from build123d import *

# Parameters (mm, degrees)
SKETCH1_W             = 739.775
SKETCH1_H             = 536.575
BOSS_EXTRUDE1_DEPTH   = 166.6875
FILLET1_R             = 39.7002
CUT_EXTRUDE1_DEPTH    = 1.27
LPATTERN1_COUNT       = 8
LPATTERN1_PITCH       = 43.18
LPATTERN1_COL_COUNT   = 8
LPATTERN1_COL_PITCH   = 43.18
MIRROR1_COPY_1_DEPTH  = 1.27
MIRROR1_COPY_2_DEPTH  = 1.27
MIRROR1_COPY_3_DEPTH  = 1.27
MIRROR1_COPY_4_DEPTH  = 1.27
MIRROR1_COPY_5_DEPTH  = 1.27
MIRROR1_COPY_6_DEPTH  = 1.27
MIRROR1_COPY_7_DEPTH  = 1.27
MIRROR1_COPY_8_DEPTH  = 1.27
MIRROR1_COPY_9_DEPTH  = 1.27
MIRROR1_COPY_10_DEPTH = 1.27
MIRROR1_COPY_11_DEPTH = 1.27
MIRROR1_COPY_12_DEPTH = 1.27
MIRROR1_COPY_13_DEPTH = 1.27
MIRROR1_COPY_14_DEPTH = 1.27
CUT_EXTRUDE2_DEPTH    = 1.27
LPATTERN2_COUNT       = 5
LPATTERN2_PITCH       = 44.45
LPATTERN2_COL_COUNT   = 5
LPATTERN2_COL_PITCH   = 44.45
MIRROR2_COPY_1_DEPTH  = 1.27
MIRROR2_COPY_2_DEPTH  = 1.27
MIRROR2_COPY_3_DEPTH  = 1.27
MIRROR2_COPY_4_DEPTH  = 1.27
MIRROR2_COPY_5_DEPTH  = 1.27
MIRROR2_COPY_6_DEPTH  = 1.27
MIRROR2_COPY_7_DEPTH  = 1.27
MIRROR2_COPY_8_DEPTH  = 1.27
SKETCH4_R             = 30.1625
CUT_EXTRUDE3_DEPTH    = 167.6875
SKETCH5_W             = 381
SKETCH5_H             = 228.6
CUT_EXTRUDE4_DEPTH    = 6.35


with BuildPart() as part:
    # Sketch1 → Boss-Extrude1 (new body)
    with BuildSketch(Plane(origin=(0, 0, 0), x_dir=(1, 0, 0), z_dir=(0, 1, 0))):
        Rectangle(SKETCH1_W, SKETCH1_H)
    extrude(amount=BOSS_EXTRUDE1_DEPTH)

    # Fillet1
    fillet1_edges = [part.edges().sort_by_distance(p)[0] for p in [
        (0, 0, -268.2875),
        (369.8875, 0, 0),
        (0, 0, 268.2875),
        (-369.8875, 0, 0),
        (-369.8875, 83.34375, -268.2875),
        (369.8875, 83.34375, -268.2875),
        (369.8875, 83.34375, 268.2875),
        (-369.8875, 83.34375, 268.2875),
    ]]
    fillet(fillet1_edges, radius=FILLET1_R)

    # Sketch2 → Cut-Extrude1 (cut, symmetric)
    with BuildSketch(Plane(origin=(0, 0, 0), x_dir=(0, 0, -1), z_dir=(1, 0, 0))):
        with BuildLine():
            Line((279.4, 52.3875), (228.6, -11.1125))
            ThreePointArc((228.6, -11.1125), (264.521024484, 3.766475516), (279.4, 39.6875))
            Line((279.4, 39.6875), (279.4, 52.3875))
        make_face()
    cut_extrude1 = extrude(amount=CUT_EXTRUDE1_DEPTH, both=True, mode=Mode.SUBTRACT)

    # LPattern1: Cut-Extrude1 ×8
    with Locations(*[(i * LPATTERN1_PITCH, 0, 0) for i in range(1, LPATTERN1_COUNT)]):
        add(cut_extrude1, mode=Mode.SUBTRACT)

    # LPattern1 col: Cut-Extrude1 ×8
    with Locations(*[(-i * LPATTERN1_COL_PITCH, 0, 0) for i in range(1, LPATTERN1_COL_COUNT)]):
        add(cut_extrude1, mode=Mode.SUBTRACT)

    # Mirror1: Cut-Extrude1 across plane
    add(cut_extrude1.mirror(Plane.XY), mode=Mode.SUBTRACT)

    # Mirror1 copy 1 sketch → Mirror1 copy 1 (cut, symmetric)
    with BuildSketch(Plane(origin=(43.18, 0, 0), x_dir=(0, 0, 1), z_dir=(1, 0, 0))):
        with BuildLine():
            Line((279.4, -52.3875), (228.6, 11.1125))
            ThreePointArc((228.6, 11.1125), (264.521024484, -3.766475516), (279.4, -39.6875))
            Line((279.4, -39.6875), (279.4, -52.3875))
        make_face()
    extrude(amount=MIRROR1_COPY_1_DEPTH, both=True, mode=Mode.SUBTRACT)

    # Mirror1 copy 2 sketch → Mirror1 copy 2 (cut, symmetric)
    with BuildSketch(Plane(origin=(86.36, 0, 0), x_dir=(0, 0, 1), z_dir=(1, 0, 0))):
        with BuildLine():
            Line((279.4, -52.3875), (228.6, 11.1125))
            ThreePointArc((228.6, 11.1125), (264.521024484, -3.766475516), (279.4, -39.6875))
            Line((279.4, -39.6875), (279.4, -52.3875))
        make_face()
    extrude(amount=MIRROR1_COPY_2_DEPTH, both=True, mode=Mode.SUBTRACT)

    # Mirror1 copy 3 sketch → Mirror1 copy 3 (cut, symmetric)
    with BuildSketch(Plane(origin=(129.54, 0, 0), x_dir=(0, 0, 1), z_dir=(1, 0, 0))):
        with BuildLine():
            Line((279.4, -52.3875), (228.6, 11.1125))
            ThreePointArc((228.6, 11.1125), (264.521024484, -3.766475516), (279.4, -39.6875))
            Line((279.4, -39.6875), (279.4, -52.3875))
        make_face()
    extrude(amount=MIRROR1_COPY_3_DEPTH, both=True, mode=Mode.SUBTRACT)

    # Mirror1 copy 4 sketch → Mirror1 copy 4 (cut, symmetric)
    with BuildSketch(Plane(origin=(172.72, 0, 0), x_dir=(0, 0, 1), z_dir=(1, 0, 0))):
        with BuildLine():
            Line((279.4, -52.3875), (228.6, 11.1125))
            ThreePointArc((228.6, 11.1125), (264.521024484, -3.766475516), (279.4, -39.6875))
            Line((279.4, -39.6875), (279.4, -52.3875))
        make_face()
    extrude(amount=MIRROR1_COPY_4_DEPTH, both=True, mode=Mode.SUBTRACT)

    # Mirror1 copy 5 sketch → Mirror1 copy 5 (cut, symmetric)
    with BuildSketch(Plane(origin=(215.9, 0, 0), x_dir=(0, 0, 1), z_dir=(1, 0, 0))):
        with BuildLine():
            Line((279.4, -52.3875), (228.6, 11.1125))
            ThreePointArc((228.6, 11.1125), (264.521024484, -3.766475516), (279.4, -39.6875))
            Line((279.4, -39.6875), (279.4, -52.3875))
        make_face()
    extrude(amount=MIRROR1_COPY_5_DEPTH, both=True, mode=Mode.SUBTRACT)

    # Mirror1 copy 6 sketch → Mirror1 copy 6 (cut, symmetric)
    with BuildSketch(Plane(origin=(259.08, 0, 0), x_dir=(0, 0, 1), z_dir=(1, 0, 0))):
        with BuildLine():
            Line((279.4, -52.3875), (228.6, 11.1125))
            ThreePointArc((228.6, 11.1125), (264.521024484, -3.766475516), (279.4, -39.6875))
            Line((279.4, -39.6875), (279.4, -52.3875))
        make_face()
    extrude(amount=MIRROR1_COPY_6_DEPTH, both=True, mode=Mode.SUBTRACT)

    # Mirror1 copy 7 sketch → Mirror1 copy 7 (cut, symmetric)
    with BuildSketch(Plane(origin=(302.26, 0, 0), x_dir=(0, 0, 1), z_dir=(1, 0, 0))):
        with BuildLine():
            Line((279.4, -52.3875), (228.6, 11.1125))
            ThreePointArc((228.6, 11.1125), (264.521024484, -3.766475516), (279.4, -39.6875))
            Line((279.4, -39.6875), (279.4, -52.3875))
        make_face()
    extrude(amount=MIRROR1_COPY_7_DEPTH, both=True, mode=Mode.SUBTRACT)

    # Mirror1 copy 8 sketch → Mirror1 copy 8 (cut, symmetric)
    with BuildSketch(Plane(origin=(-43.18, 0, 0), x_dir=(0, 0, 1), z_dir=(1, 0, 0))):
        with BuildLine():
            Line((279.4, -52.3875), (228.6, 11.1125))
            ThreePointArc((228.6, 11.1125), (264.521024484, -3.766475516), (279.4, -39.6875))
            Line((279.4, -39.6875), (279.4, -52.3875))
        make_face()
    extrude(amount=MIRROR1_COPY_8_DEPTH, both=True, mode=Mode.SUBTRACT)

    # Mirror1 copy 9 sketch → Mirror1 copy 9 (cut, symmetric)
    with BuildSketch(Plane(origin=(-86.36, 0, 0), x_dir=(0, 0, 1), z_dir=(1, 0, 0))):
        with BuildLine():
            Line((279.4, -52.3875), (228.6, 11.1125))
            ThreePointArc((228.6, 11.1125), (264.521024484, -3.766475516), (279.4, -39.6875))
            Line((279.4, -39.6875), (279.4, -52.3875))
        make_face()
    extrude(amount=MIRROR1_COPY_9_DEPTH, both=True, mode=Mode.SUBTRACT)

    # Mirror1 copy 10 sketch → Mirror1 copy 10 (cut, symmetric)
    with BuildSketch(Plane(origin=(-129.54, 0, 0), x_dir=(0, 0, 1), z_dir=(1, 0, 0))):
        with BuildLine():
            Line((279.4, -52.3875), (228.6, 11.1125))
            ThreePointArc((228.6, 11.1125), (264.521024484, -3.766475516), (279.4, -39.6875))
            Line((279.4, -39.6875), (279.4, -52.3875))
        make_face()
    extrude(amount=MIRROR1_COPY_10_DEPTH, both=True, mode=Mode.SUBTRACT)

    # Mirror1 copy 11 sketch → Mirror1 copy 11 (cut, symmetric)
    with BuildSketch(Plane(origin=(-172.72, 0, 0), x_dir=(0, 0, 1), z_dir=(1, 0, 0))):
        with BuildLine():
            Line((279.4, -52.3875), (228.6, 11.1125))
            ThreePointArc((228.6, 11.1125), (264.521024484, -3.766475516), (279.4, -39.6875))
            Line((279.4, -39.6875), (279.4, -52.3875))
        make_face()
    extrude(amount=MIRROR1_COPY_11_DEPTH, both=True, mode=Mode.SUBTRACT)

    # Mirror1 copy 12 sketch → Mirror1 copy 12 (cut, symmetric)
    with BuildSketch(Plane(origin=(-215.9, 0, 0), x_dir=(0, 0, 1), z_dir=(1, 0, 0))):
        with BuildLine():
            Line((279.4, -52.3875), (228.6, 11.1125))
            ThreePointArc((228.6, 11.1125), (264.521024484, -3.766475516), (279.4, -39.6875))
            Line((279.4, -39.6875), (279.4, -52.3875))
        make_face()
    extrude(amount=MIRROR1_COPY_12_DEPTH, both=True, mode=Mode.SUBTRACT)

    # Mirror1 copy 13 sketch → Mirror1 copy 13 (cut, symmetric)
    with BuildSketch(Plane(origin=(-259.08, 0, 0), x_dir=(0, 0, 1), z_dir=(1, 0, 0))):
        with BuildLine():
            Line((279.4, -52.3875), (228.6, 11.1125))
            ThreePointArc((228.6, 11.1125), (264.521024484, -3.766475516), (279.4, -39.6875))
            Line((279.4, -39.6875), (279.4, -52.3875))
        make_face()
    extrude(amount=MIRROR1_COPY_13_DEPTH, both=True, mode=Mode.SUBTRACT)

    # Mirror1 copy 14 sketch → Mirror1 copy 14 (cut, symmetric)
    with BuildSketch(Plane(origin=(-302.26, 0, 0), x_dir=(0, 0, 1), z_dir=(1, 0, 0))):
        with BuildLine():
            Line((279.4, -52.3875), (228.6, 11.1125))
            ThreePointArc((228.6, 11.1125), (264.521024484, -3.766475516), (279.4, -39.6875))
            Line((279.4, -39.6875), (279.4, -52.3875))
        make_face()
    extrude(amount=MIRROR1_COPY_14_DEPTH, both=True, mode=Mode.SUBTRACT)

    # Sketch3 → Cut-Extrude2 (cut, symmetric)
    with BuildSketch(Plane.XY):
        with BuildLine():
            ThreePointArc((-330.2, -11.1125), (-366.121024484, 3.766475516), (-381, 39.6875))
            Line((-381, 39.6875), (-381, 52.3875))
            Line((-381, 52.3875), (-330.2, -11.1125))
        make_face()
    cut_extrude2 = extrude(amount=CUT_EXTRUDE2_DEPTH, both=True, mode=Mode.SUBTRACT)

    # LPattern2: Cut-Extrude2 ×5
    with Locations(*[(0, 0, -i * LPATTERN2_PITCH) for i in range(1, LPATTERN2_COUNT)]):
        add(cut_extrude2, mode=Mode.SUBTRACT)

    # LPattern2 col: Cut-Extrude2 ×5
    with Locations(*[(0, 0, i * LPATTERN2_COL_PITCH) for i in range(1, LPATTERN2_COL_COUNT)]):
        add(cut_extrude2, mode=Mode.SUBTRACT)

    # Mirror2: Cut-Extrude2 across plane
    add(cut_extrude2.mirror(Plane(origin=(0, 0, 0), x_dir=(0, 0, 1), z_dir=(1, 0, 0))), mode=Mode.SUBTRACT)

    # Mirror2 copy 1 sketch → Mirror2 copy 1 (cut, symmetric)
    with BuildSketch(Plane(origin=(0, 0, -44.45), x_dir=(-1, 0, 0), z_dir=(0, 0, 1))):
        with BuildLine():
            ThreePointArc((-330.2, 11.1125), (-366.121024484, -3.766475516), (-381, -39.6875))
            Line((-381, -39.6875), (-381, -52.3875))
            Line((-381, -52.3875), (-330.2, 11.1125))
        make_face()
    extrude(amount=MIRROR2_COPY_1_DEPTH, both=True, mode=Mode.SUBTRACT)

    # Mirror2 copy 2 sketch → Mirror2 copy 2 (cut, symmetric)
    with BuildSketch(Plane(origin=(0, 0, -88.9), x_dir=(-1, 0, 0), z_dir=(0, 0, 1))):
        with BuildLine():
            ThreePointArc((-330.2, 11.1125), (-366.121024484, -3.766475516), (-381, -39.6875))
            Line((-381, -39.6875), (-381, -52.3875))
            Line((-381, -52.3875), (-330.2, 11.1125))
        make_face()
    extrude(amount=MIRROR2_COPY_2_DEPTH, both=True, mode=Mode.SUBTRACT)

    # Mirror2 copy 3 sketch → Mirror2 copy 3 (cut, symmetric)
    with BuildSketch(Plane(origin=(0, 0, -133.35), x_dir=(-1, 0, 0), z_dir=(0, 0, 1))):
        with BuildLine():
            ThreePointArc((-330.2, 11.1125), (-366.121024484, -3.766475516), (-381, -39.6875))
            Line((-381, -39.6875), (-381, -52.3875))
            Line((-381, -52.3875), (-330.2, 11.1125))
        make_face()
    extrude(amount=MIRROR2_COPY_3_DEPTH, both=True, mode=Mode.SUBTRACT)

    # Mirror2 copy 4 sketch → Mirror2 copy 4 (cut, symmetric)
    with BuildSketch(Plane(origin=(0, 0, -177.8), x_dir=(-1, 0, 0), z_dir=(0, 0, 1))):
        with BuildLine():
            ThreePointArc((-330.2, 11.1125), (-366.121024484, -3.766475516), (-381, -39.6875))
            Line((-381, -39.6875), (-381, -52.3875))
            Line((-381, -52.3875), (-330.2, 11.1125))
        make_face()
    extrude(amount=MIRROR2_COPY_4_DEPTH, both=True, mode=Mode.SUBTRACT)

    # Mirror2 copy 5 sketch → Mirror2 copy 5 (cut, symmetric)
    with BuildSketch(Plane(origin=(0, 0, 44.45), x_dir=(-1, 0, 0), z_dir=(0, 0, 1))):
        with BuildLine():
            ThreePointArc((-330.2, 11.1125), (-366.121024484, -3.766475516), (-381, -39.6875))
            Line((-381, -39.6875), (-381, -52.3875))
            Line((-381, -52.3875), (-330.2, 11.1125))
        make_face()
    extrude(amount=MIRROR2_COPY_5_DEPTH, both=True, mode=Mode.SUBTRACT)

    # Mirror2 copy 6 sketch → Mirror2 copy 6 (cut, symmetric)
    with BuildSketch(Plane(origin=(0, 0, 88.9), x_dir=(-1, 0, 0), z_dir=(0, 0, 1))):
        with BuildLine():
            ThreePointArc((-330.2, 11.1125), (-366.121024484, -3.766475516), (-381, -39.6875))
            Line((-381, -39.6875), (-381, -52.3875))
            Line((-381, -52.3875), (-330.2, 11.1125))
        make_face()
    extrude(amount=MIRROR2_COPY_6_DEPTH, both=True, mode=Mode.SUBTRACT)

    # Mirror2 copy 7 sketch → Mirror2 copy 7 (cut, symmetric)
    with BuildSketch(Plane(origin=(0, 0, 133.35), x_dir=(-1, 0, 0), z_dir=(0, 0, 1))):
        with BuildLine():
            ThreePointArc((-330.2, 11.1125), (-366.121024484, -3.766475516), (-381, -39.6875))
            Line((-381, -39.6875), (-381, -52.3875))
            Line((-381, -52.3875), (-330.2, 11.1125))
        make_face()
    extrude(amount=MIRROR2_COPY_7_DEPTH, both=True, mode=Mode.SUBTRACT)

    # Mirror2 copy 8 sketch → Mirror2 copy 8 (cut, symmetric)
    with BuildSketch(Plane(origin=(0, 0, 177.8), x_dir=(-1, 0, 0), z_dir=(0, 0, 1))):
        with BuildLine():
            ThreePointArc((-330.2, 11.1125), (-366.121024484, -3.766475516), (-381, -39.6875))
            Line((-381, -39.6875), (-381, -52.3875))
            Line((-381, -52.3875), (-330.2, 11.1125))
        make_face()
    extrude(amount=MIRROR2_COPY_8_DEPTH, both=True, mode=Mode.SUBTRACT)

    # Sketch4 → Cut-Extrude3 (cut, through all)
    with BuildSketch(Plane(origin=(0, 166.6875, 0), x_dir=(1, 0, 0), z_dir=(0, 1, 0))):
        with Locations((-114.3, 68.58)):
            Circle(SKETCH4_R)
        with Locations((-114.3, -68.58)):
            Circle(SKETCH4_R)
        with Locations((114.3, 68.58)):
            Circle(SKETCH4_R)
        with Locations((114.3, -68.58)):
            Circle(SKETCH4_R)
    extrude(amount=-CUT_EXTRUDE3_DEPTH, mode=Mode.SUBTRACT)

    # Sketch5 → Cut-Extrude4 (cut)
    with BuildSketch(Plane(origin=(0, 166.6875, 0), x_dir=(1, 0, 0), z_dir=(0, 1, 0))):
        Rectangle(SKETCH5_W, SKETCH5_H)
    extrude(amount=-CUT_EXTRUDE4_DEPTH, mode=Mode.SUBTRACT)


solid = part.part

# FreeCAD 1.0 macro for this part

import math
import FreeCAD as App
import Part
import Sketcher

V = App.Vector
Q = App.Units.Quantity


def edges_at(feature, points):
    """Names of the edges that pass closest to the given points."""
    edges = feature.Shape.Edges
    near = lambda p: min(range(len(edges)), key=lambda i: edges[i].distToShape(Part.Vertex(*p))[0])
    return sorted({f"Edge{near(p) + 1}" for p in points})


def add_polygon(sketch, points):
    """Adds a closed chain of lines whose ends are joined by coincident constraints."""
    first, n = sketch.GeometryCount, len(points)
    for a, b in zip(points, points[1:] + points[:1]):
        sketch.addGeometry(Part.LineSegment(App.Vector(*a, 0), App.Vector(*b, 0)), False)
    for i in range(n):
        sketch.addConstraint(Sketcher.Constraint("Coincident", first + i, 2, first + (i + 1) % n, 1))

doc = App.newDocument("Part")
body = doc.addObject("PartDesign::Body", "Body")

# Sketch on XZ plane
sketch1 = body.newObject("Sketcher::SketchObject", "Sketch")
sketch1.AttachmentSupport = (doc.getObject("XZ_Plane"), [""])
sketch1.MapMode = "FlatFace"
add_polygon(sketch1, [(-369.8875, -268.2875), (-369.8875, 268.2875), (369.8875, 268.2875), (369.8875, -268.2875)])  # lines 0-3
sketch1.addConstraint([
    Sketcher.Constraint("Vertical", 0),
    Sketcher.Constraint("Horizontal", 1),
    Sketcher.Constraint("Vertical", 2),
    Sketcher.Constraint("Horizontal", 3),
    Sketcher.Constraint("Symmetric", 0, 2, 2, 2, -1, 1),
    Sketcher.Constraint("DistanceX", 1, 1, 1, 2, Q("29.125 in")),
    Sketcher.Constraint("DistanceY", 0, 1, 0, 2, Q("21.125 in")),
])
pad1 = body.newObject("PartDesign::Pad", "Pad")
pad1.Profile = sketch1
pad1.Length = Q("6.5625 in")
pad1.Reversed = True
doc.recompute()

fillet = body.newObject("PartDesign::Fillet", "Fillet")
fillet.Base = (pad1, edges_at(pad1, [
    (0, 0, -268.288),
    (369.887, 0, 0),
    (0, 0, 268.288),
    (-369.887, 0, 0),
    (-369.887, 83.344, -268.288),
    (369.887, 83.344, -268.288),
    (369.887, 83.344, 268.288),
    (-369.887, 83.344, 268.288),
]))
fillet.Radius = Q("1.563 in")

# Sketch on YZ plane
sketch2 = body.newObject("Sketcher::SketchObject", "Sketch001")
sketch2.AttachmentSupport = (doc.getObject("YZ_Plane"), [""])
sketch2.MapMode = "FlatFace"
sketch2.addGeometry([
    Part.LineSegment(V(52.3875, -279.4, 0), V(-11.1125, -228.6, 0)),
    Part.ArcOfCircle(Part.Circle(V(39.6875, -228.6, 0), V(0, 0, 1), 50.8), math.radians(-180), math.radians(-90)),
    Part.LineSegment(V(39.6875, -279.4, 0), V(52.3875, -279.4, 0)),
], False)
sketch2.addConstraint([
    Sketcher.Constraint("Coincident", 0, 2, 1, 1),
    Sketcher.Constraint("Tangent", 1, 2, 2, 1),
    Sketcher.Constraint("Coincident", 2, 2, 0, 1),
    Sketcher.Constraint("Horizontal", 2),
    Sketcher.Constraint("Horizontal", 1, 3, 0, 2),
    Sketcher.Constraint("Radius", 1, Q("2 in")),
    Sketcher.Constraint("DistanceX", 2, 1, 2, 2, Q("0.5 in")),
    Sketcher.Constraint("DistanceY", 1, 3, -1, 1, Q("9 in")),
    Sketcher.Constraint("DistanceX", -1, 1, 1, 3, Q("1.5625 in")),
])
pocket1 = body.newObject("PartDesign::Pocket", "Pocket")
pocket1.Profile = sketch2
pocket1.Length = Q("0.1 in")
pocket1.Midplane = True
doc.recompute()

linearpattern = body.newObject("PartDesign::LinearPattern", "LinearPattern")
linearpattern.Originals = [pocket1]
linearpattern.Direction = (doc.getObject("X_Axis"), [""])
linearpattern.Mode = "offset"
linearpattern.Offset = Q("1.7 in")
linearpattern.Occurrences = 8
body.Tip = linearpattern
doc.recompute()

linearpattern2 = body.newObject("PartDesign::LinearPattern", "LinearPattern001")
linearpattern2.Originals = [pocket1]
linearpattern2.Direction = (doc.getObject("X_Axis"), [""])
linearpattern2.Mode = "offset"
linearpattern2.Offset = Q("1.7 in")
linearpattern2.Occurrences = 8
linearpattern2.Reversed = True
body.Tip = linearpattern2
doc.recompute()

mirrored = body.newObject("PartDesign::Mirrored", "Mirrored")
mirrored.Originals = [pocket1]
mirrored.MirrorPlane = (doc.getObject("XY_Plane"), [""])
body.Tip = mirrored

# Sketch on YZ plane
sketch3 = body.newObject("Sketcher::SketchObject", "Sketch002")
sketch3.AttachmentSupport = (doc.getObject("YZ_Plane"), [""])
sketch3.MapMode = "FlatFace"
sketch3.AttachmentOffset = App.Placement(V(0, 0, 1.7 * 25.4), App.Rotation())
sketch3.addGeometry([
    Part.LineSegment(V(-11.1125, 228.6, 0), V(52.3875, 279.4, 0)),
    Part.LineSegment(V(52.3875, 279.4, 0), V(39.6875, 279.4, 0)),
    Part.ArcOfCircle(Part.Circle(V(39.6875, 228.6, 0), V(0, 0, 1), 50.8), math.radians(90), math.radians(180)),
], False)
sketch3.addConstraint([
    Sketcher.Constraint("Coincident", 0, 2, 1, 1),
    Sketcher.Constraint("Tangent", 1, 2, 2, 1),
    Sketcher.Constraint("Coincident", 2, 2, 0, 1),
    Sketcher.Constraint("Horizontal", 1),
    Sketcher.Constraint("Radius", 2, Q("2 in")),
    Sketcher.Constraint("DistanceX", 1, 2, 1, 1, Q("0.5 in")),
    Sketcher.Constraint("DistanceY", -1, 1, 2, 3, Q("9 in")),
    Sketcher.Constraint("DistanceY", -1, 1, 2, 2, Q("9 in")),
    Sketcher.Constraint("DistanceX", -1, 1, 2, 3, Q("1.5625 in")),
])
pocket2 = body.newObject("PartDesign::Pocket", "Pocket001")
pocket2.Profile = sketch3
pocket2.Length = Q("0.1 in")
pocket2.Midplane = True

# Sketch on YZ plane
sketch4 = body.newObject("Sketcher::SketchObject", "Sketch003")
sketch4.AttachmentSupport = (doc.getObject("YZ_Plane"), [""])
sketch4.MapMode = "FlatFace"
sketch4.AttachmentOffset = App.Placement(V(0, 0, 3.4 * 25.4), App.Rotation())
sketch4.addGeometry([
    Part.LineSegment(V(-11.1125, 228.6, 0), V(52.3875, 279.4, 0)),
    Part.LineSegment(V(52.3875, 279.4, 0), V(39.6875, 279.4, 0)),
    Part.ArcOfCircle(Part.Circle(V(39.6875, 228.6, 0), V(0, 0, 1), 50.8), math.radians(90), math.radians(180)),
], False)
sketch4.addConstraint([
    Sketcher.Constraint("Coincident", 0, 2, 1, 1),
    Sketcher.Constraint("Tangent", 1, 2, 2, 1),
    Sketcher.Constraint("Coincident", 2, 2, 0, 1),
    Sketcher.Constraint("Horizontal", 1),
    Sketcher.Constraint("Radius", 2, Q("2 in")),
    Sketcher.Constraint("DistanceX", 1, 2, 1, 1, Q("0.5 in")),
    Sketcher.Constraint("DistanceY", -1, 1, 2, 3, Q("9 in")),
    Sketcher.Constraint("DistanceY", -1, 1, 2, 2, Q("9 in")),
    Sketcher.Constraint("DistanceX", -1, 1, 2, 3, Q("1.5625 in")),
])
pocket3 = body.newObject("PartDesign::Pocket", "Pocket002")
pocket3.Profile = sketch4
pocket3.Length = Q("0.1 in")
pocket3.Midplane = True

# Sketch on YZ plane
sketch5 = body.newObject("Sketcher::SketchObject", "Sketch004")
sketch5.AttachmentSupport = (doc.getObject("YZ_Plane"), [""])
sketch5.MapMode = "FlatFace"
sketch5.AttachmentOffset = App.Placement(V(0, 0, 5.1 * 25.4), App.Rotation())
sketch5.addGeometry([
    Part.LineSegment(V(-11.1125, 228.6, 0), V(52.3875, 279.4, 0)),
    Part.LineSegment(V(52.3875, 279.4, 0), V(39.6875, 279.4, 0)),
    Part.ArcOfCircle(Part.Circle(V(39.6875, 228.6, 0), V(0, 0, 1), 50.8), math.radians(90), math.radians(180)),
], False)
sketch5.addConstraint([
    Sketcher.Constraint("Coincident", 0, 2, 1, 1),
    Sketcher.Constraint("Tangent", 1, 2, 2, 1),
    Sketcher.Constraint("Coincident", 2, 2, 0, 1),
    Sketcher.Constraint("Horizontal", 1),
    Sketcher.Constraint("Radius", 2, Q("2 in")),
    Sketcher.Constraint("DistanceX", 1, 2, 1, 1, Q("0.5 in")),
    Sketcher.Constraint("DistanceY", -1, 1, 2, 3, Q("9 in")),
    Sketcher.Constraint("DistanceY", -1, 1, 2, 2, Q("9 in")),
    Sketcher.Constraint("DistanceX", -1, 1, 2, 3, Q("1.5625 in")),
])
pocket4 = body.newObject("PartDesign::Pocket", "Pocket003")
pocket4.Profile = sketch5
pocket4.Length = Q("0.1 in")
pocket4.Midplane = True

# Sketch on YZ plane
sketch6 = body.newObject("Sketcher::SketchObject", "Sketch005")
sketch6.AttachmentSupport = (doc.getObject("YZ_Plane"), [""])
sketch6.MapMode = "FlatFace"
sketch6.AttachmentOffset = App.Placement(V(0, 0, 6.8 * 25.4), App.Rotation())
sketch6.addGeometry([
    Part.LineSegment(V(-11.1125, 228.6, 0), V(52.3875, 279.4, 0)),
    Part.LineSegment(V(52.3875, 279.4, 0), V(39.6875, 279.4, 0)),
    Part.ArcOfCircle(Part.Circle(V(39.6875, 228.6, 0), V(0, 0, 1), 50.8), math.radians(90), math.radians(180)),
], False)
sketch6.addConstraint([
    Sketcher.Constraint("Coincident", 0, 2, 1, 1),
    Sketcher.Constraint("Tangent", 1, 2, 2, 1),
    Sketcher.Constraint("Coincident", 2, 2, 0, 1),
    Sketcher.Constraint("Horizontal", 1),
    Sketcher.Constraint("Radius", 2, Q("2 in")),
    Sketcher.Constraint("DistanceX", 1, 2, 1, 1, Q("0.5 in")),
    Sketcher.Constraint("DistanceY", -1, 1, 2, 3, Q("9 in")),
    Sketcher.Constraint("DistanceY", -1, 1, 2, 2, Q("9 in")),
    Sketcher.Constraint("DistanceX", -1, 1, 2, 3, Q("1.5625 in")),
])
pocket5 = body.newObject("PartDesign::Pocket", "Pocket004")
pocket5.Profile = sketch6
pocket5.Length = Q("0.1 in")
pocket5.Midplane = True

# Sketch on YZ plane
sketch7 = body.newObject("Sketcher::SketchObject", "Sketch006")
sketch7.AttachmentSupport = (doc.getObject("YZ_Plane"), [""])
sketch7.MapMode = "FlatFace"
sketch7.AttachmentOffset = App.Placement(V(0, 0, 8.5 * 25.4), App.Rotation())
sketch7.addGeometry([
    Part.LineSegment(V(-11.1125, 228.6, 0), V(52.3875, 279.4, 0)),
    Part.LineSegment(V(52.3875, 279.4, 0), V(39.6875, 279.4, 0)),
    Part.ArcOfCircle(Part.Circle(V(39.6875, 228.6, 0), V(0, 0, 1), 50.8), math.radians(90), math.radians(180)),
], False)
sketch7.addConstraint([
    Sketcher.Constraint("Coincident", 0, 2, 1, 1),
    Sketcher.Constraint("Tangent", 1, 2, 2, 1),
    Sketcher.Constraint("Coincident", 2, 2, 0, 1),
    Sketcher.Constraint("Horizontal", 1),
    Sketcher.Constraint("Radius", 2, Q("2 in")),
    Sketcher.Constraint("DistanceX", 1, 2, 1, 1, Q("0.5 in")),
    Sketcher.Constraint("DistanceY", -1, 1, 2, 3, Q("9 in")),
    Sketcher.Constraint("DistanceY", -1, 1, 2, 2, Q("9 in")),
    Sketcher.Constraint("DistanceX", -1, 1, 2, 3, Q("1.5625 in")),
])
pocket6 = body.newObject("PartDesign::Pocket", "Pocket005")
pocket6.Profile = sketch7
pocket6.Length = Q("0.1 in")
pocket6.Midplane = True

# Sketch on YZ plane
sketch8 = body.newObject("Sketcher::SketchObject", "Sketch007")
sketch8.AttachmentSupport = (doc.getObject("YZ_Plane"), [""])
sketch8.MapMode = "FlatFace"
sketch8.AttachmentOffset = App.Placement(V(0, 0, 10.2 * 25.4), App.Rotation())
sketch8.addGeometry([
    Part.LineSegment(V(-11.1125, 228.6, 0), V(52.3875, 279.4, 0)),
    Part.LineSegment(V(52.3875, 279.4, 0), V(39.6875, 279.4, 0)),
    Part.ArcOfCircle(Part.Circle(V(39.6875, 228.6, 0), V(0, 0, 1), 50.8), math.radians(90), math.radians(180)),
], False)
sketch8.addConstraint([
    Sketcher.Constraint("Coincident", 0, 2, 1, 1),
    Sketcher.Constraint("Tangent", 1, 2, 2, 1),
    Sketcher.Constraint("Coincident", 2, 2, 0, 1),
    Sketcher.Constraint("Horizontal", 1),
    Sketcher.Constraint("Radius", 2, Q("2 in")),
    Sketcher.Constraint("DistanceX", 1, 2, 1, 1, Q("0.5 in")),
    Sketcher.Constraint("DistanceY", -1, 1, 2, 3, Q("9 in")),
    Sketcher.Constraint("DistanceY", -1, 1, 2, 2, Q("9 in")),
    Sketcher.Constraint("DistanceX", -1, 1, 2, 3, Q("1.5625 in")),
])
pocket7 = body.newObject("PartDesign::Pocket", "Pocket006")
pocket7.Profile = sketch8
pocket7.Length = Q("0.1 in")
pocket7.Midplane = True

# Sketch on YZ plane
sketch9 = body.newObject("Sketcher::SketchObject", "Sketch008")
sketch9.AttachmentSupport = (doc.getObject("YZ_Plane"), [""])
sketch9.MapMode = "FlatFace"
sketch9.AttachmentOffset = App.Placement(V(0, 0, 11.9 * 25.4), App.Rotation())
sketch9.addGeometry([
    Part.LineSegment(V(-11.1125, 228.6, 0), V(52.3875, 279.4, 0)),
    Part.LineSegment(V(52.3875, 279.4, 0), V(39.6875, 279.4, 0)),
    Part.ArcOfCircle(Part.Circle(V(39.6875, 228.6, 0), V(0, 0, 1), 50.8), math.radians(90), math.radians(180)),
], False)
sketch9.addConstraint([
    Sketcher.Constraint("Coincident", 0, 2, 1, 1),
    Sketcher.Constraint("Tangent", 1, 2, 2, 1),
    Sketcher.Constraint("Coincident", 2, 2, 0, 1),
    Sketcher.Constraint("Horizontal", 1),
    Sketcher.Constraint("Radius", 2, Q("2 in")),
    Sketcher.Constraint("DistanceX", 1, 2, 1, 1, Q("0.5 in")),
    Sketcher.Constraint("DistanceY", -1, 1, 2, 3, Q("9 in")),
    Sketcher.Constraint("DistanceY", -1, 1, 2, 2, Q("9 in")),
    Sketcher.Constraint("DistanceX", -1, 1, 2, 3, Q("1.5625 in")),
])
pocket8 = body.newObject("PartDesign::Pocket", "Pocket007")
pocket8.Profile = sketch9
pocket8.Length = Q("0.1 in")
pocket8.Midplane = True

# Sketch on YZ plane
sketch10 = body.newObject("Sketcher::SketchObject", "Sketch009")
sketch10.AttachmentSupport = (doc.getObject("YZ_Plane"), [""])
sketch10.MapMode = "FlatFace"
sketch10.AttachmentOffset = App.Placement(V(0, 0, -1.7 * 25.4), App.Rotation())
sketch10.addGeometry([
    Part.LineSegment(V(-11.1125, 228.6, 0), V(52.3875, 279.4, 0)),
    Part.LineSegment(V(52.3875, 279.4, 0), V(39.6875, 279.4, 0)),
    Part.ArcOfCircle(Part.Circle(V(39.6875, 228.6, 0), V(0, 0, 1), 50.8), math.radians(90), math.radians(180)),
], False)
sketch10.addConstraint([
    Sketcher.Constraint("Coincident", 0, 2, 1, 1),
    Sketcher.Constraint("Tangent", 1, 2, 2, 1),
    Sketcher.Constraint("Coincident", 2, 2, 0, 1),
    Sketcher.Constraint("Horizontal", 1),
    Sketcher.Constraint("Radius", 2, Q("2 in")),
    Sketcher.Constraint("DistanceX", 1, 2, 1, 1, Q("0.5 in")),
    Sketcher.Constraint("DistanceY", -1, 1, 2, 3, Q("9 in")),
    Sketcher.Constraint("DistanceY", -1, 1, 2, 2, Q("9 in")),
    Sketcher.Constraint("DistanceX", -1, 1, 2, 3, Q("1.5625 in")),
])
pocket9 = body.newObject("PartDesign::Pocket", "Pocket008")
pocket9.Profile = sketch10
pocket9.Length = Q("0.1 in")
pocket9.Midplane = True

# Sketch on YZ plane
sketch11 = body.newObject("Sketcher::SketchObject", "Sketch010")
sketch11.AttachmentSupport = (doc.getObject("YZ_Plane"), [""])
sketch11.MapMode = "FlatFace"
sketch11.AttachmentOffset = App.Placement(V(0, 0, -3.4 * 25.4), App.Rotation())
sketch11.addGeometry([
    Part.LineSegment(V(-11.1125, 228.6, 0), V(52.3875, 279.4, 0)),
    Part.LineSegment(V(52.3875, 279.4, 0), V(39.6875, 279.4, 0)),
    Part.ArcOfCircle(Part.Circle(V(39.6875, 228.6, 0), V(0, 0, 1), 50.8), math.radians(90), math.radians(180)),
], False)
sketch11.addConstraint([
    Sketcher.Constraint("Coincident", 0, 2, 1, 1),
    Sketcher.Constraint("Tangent", 1, 2, 2, 1),
    Sketcher.Constraint("Coincident", 2, 2, 0, 1),
    Sketcher.Constraint("Horizontal", 1),
    Sketcher.Constraint("Radius", 2, Q("2 in")),
    Sketcher.Constraint("DistanceX", 1, 2, 1, 1, Q("0.5 in")),
    Sketcher.Constraint("DistanceY", -1, 1, 2, 3, Q("9 in")),
    Sketcher.Constraint("DistanceY", -1, 1, 2, 2, Q("9 in")),
    Sketcher.Constraint("DistanceX", -1, 1, 2, 3, Q("1.5625 in")),
])
pocket10 = body.newObject("PartDesign::Pocket", "Pocket009")
pocket10.Profile = sketch11
pocket10.Length = Q("0.1 in")
pocket10.Midplane = True

# Sketch on YZ plane
sketch12 = body.newObject("Sketcher::SketchObject", "Sketch011")
sketch12.AttachmentSupport = (doc.getObject("YZ_Plane"), [""])
sketch12.MapMode = "FlatFace"
sketch12.AttachmentOffset = App.Placement(V(0, 0, -5.1 * 25.4), App.Rotation())
sketch12.addGeometry([
    Part.LineSegment(V(-11.1125, 228.6, 0), V(52.3875, 279.4, 0)),
    Part.LineSegment(V(52.3875, 279.4, 0), V(39.6875, 279.4, 0)),
    Part.ArcOfCircle(Part.Circle(V(39.6875, 228.6, 0), V(0, 0, 1), 50.8), math.radians(90), math.radians(180)),
], False)
sketch12.addConstraint([
    Sketcher.Constraint("Coincident", 0, 2, 1, 1),
    Sketcher.Constraint("Tangent", 1, 2, 2, 1),
    Sketcher.Constraint("Coincident", 2, 2, 0, 1),
    Sketcher.Constraint("Horizontal", 1),
    Sketcher.Constraint("Radius", 2, Q("2 in")),
    Sketcher.Constraint("DistanceX", 1, 2, 1, 1, Q("0.5 in")),
    Sketcher.Constraint("DistanceY", -1, 1, 2, 3, Q("9 in")),
    Sketcher.Constraint("DistanceY", -1, 1, 2, 2, Q("9 in")),
    Sketcher.Constraint("DistanceX", -1, 1, 2, 3, Q("1.5625 in")),
])
pocket11 = body.newObject("PartDesign::Pocket", "Pocket010")
pocket11.Profile = sketch12
pocket11.Length = Q("0.1 in")
pocket11.Midplane = True

# Sketch on YZ plane
sketch13 = body.newObject("Sketcher::SketchObject", "Sketch012")
sketch13.AttachmentSupport = (doc.getObject("YZ_Plane"), [""])
sketch13.MapMode = "FlatFace"
sketch13.AttachmentOffset = App.Placement(V(0, 0, -6.8 * 25.4), App.Rotation())
sketch13.addGeometry([
    Part.LineSegment(V(-11.1125, 228.6, 0), V(52.3875, 279.4, 0)),
    Part.LineSegment(V(52.3875, 279.4, 0), V(39.6875, 279.4, 0)),
    Part.ArcOfCircle(Part.Circle(V(39.6875, 228.6, 0), V(0, 0, 1), 50.8), math.radians(90), math.radians(180)),
], False)
sketch13.addConstraint([
    Sketcher.Constraint("Coincident", 0, 2, 1, 1),
    Sketcher.Constraint("Tangent", 1, 2, 2, 1),
    Sketcher.Constraint("Coincident", 2, 2, 0, 1),
    Sketcher.Constraint("Horizontal", 1),
    Sketcher.Constraint("Radius", 2, Q("2 in")),
    Sketcher.Constraint("DistanceX", 1, 2, 1, 1, Q("0.5 in")),
    Sketcher.Constraint("DistanceY", -1, 1, 2, 3, Q("9 in")),
    Sketcher.Constraint("DistanceY", -1, 1, 2, 2, Q("9 in")),
    Sketcher.Constraint("DistanceX", -1, 1, 2, 3, Q("1.5625 in")),
])
pocket12 = body.newObject("PartDesign::Pocket", "Pocket011")
pocket12.Profile = sketch13
pocket12.Length = Q("0.1 in")
pocket12.Midplane = True

# Sketch on YZ plane
sketch14 = body.newObject("Sketcher::SketchObject", "Sketch013")
sketch14.AttachmentSupport = (doc.getObject("YZ_Plane"), [""])
sketch14.MapMode = "FlatFace"
sketch14.AttachmentOffset = App.Placement(V(0, 0, -8.5 * 25.4), App.Rotation())
sketch14.addGeometry([
    Part.LineSegment(V(-11.1125, 228.6, 0), V(52.3875, 279.4, 0)),
    Part.LineSegment(V(52.3875, 279.4, 0), V(39.6875, 279.4, 0)),
    Part.ArcOfCircle(Part.Circle(V(39.6875, 228.6, 0), V(0, 0, 1), 50.8), math.radians(90), math.radians(180)),
], False)
sketch14.addConstraint([
    Sketcher.Constraint("Coincident", 0, 2, 1, 1),
    Sketcher.Constraint("Tangent", 1, 2, 2, 1),
    Sketcher.Constraint("Coincident", 2, 2, 0, 1),
    Sketcher.Constraint("Horizontal", 1),
    Sketcher.Constraint("Radius", 2, Q("2 in")),
    Sketcher.Constraint("DistanceX", 1, 2, 1, 1, Q("0.5 in")),
    Sketcher.Constraint("DistanceY", -1, 1, 2, 3, Q("9 in")),
    Sketcher.Constraint("DistanceY", -1, 1, 2, 2, Q("9 in")),
    Sketcher.Constraint("DistanceX", -1, 1, 2, 3, Q("1.5625 in")),
])
pocket13 = body.newObject("PartDesign::Pocket", "Pocket012")
pocket13.Profile = sketch14
pocket13.Length = Q("0.1 in")
pocket13.Midplane = True

# Sketch on YZ plane
sketch15 = body.newObject("Sketcher::SketchObject", "Sketch014")
sketch15.AttachmentSupport = (doc.getObject("YZ_Plane"), [""])
sketch15.MapMode = "FlatFace"
sketch15.AttachmentOffset = App.Placement(V(0, 0, -10.2 * 25.4), App.Rotation())
sketch15.addGeometry([
    Part.LineSegment(V(-11.1125, 228.6, 0), V(52.3875, 279.4, 0)),
    Part.LineSegment(V(52.3875, 279.4, 0), V(39.6875, 279.4, 0)),
    Part.ArcOfCircle(Part.Circle(V(39.6875, 228.6, 0), V(0, 0, 1), 50.8), math.radians(90), math.radians(180)),
], False)
sketch15.addConstraint([
    Sketcher.Constraint("Coincident", 0, 2, 1, 1),
    Sketcher.Constraint("Tangent", 1, 2, 2, 1),
    Sketcher.Constraint("Coincident", 2, 2, 0, 1),
    Sketcher.Constraint("Horizontal", 1),
    Sketcher.Constraint("Radius", 2, Q("2 in")),
    Sketcher.Constraint("DistanceX", 1, 2, 1, 1, Q("0.5 in")),
    Sketcher.Constraint("DistanceY", -1, 1, 2, 3, Q("9 in")),
    Sketcher.Constraint("DistanceY", -1, 1, 2, 2, Q("9 in")),
    Sketcher.Constraint("DistanceX", -1, 1, 2, 3, Q("1.5625 in")),
])
pocket14 = body.newObject("PartDesign::Pocket", "Pocket013")
pocket14.Profile = sketch15
pocket14.Length = Q("0.1 in")
pocket14.Midplane = True

# Sketch on YZ plane
sketch16 = body.newObject("Sketcher::SketchObject", "Sketch015")
sketch16.AttachmentSupport = (doc.getObject("YZ_Plane"), [""])
sketch16.MapMode = "FlatFace"
sketch16.AttachmentOffset = App.Placement(V(0, 0, -11.9 * 25.4), App.Rotation())
sketch16.addGeometry([
    Part.LineSegment(V(-11.1125, 228.6, 0), V(52.3875, 279.4, 0)),
    Part.LineSegment(V(52.3875, 279.4, 0), V(39.6875, 279.4, 0)),
    Part.ArcOfCircle(Part.Circle(V(39.6875, 228.6, 0), V(0, 0, 1), 50.8), math.radians(90), math.radians(180)),
], False)
sketch16.addConstraint([
    Sketcher.Constraint("Coincident", 0, 2, 1, 1),
    Sketcher.Constraint("Tangent", 1, 2, 2, 1),
    Sketcher.Constraint("Coincident", 2, 2, 0, 1),
    Sketcher.Constraint("Horizontal", 1),
    Sketcher.Constraint("Radius", 2, Q("2 in")),
    Sketcher.Constraint("DistanceX", 1, 2, 1, 1, Q("0.5 in")),
    Sketcher.Constraint("DistanceY", -1, 1, 2, 3, Q("9 in")),
    Sketcher.Constraint("DistanceY", -1, 1, 2, 2, Q("9 in")),
    Sketcher.Constraint("DistanceX", -1, 1, 2, 3, Q("1.5625 in")),
])
pocket15 = body.newObject("PartDesign::Pocket", "Pocket014")
pocket15.Profile = sketch16
pocket15.Length = Q("0.1 in")
pocket15.Midplane = True

# Sketch on XY plane
sketch17 = body.newObject("Sketcher::SketchObject", "Sketch016")
sketch17.AttachmentSupport = (doc.getObject("XY_Plane"), [""])
sketch17.MapMode = "FlatFace"
sketch17.addGeometry([
    Part.ArcOfCircle(Part.Circle(V(-330.2, 39.6875, 0), V(0, 0, 1), 50.8), math.radians(-180), math.radians(-90)),
    Part.LineSegment(V(-330.2, -11.1125, 0), V(-381, 52.3875, 0)),
    Part.LineSegment(V(-381, 52.3875, 0), V(-381, 39.6875, 0)),
], False)
sketch17.addConstraint([
    Sketcher.Constraint("Coincident", 0, 2, 1, 1),
    Sketcher.Constraint("Coincident", 1, 2, 2, 1),
    Sketcher.Constraint("Tangent", 2, 2, 0, 1),
    Sketcher.Constraint("Vertical", 2),
    Sketcher.Constraint("Radius", 0, Q("2 in")),
    Sketcher.Constraint("DistanceY", 2, 2, 2, 1, Q("0.5 in")),
    Sketcher.Constraint("DistanceX", 0, 3, -1, 1, Q("13 in")),
    Sketcher.Constraint("DistanceX", 0, 2, -1, 1, Q("13 in")),
    Sketcher.Constraint("DistanceY", -1, 1, 0, 3, Q("1.5625 in")),
])
pocket16 = body.newObject("PartDesign::Pocket", "Pocket015")
pocket16.Profile = sketch17
pocket16.Length = Q("0.1 in")
pocket16.Midplane = True
doc.recompute()

linearpattern3 = body.newObject("PartDesign::LinearPattern", "LinearPattern002")
linearpattern3.Originals = [pocket16]
linearpattern3.Direction = (doc.getObject("Z_Axis"), [""])
linearpattern3.Mode = "offset"
linearpattern3.Offset = Q("1.75 in")
linearpattern3.Occurrences = 5
linearpattern3.Reversed = True
body.Tip = linearpattern3
doc.recompute()

linearpattern4 = body.newObject("PartDesign::LinearPattern", "LinearPattern003")
linearpattern4.Originals = [pocket16]
linearpattern4.Direction = (doc.getObject("Z_Axis"), [""])
linearpattern4.Mode = "offset"
linearpattern4.Offset = Q("1.75 in")
linearpattern4.Occurrences = 5
body.Tip = linearpattern4
doc.recompute()

mirrored2 = body.newObject("PartDesign::Mirrored", "Mirrored001")
mirrored2.Originals = [pocket16]
mirrored2.MirrorPlane = (doc.getObject("YZ_Plane"), [""])
body.Tip = mirrored2

# Sketch on XY plane
sketch18 = body.newObject("Sketcher::SketchObject", "Sketch017")
sketch18.AttachmentSupport = (doc.getObject("XY_Plane"), [""])
sketch18.MapMode = "FlatFace"
sketch18.AttachmentOffset = App.Placement(V(0, 0, -1.75 * 25.4), App.Rotation())
sketch18.addGeometry([
    Part.ArcOfCircle(Part.Circle(V(330.2, 39.6875, 0), V(0, 0, 1), 50.8), math.radians(-90), math.radians(0)),
    Part.LineSegment(V(381, 39.6875, 0), V(381, 52.3875, 0)),
    Part.LineSegment(V(381, 52.3875, 0), V(330.2, -11.1125, 0)),
], False)
sketch18.addConstraint([
    Sketcher.Constraint("Tangent", 0, 2, 1, 1),
    Sketcher.Constraint("Coincident", 1, 2, 2, 1),
    Sketcher.Constraint("Coincident", 2, 2, 0, 1),
    Sketcher.Constraint("Vertical", 1),
    Sketcher.Constraint("Vertical", 0, 3, 2, 2),
    Sketcher.Constraint("Radius", 0, Q("2 in")),
    Sketcher.Constraint("DistanceY", 1, 1, 1, 2, Q("0.5 in")),
    Sketcher.Constraint("DistanceX", -1, 1, 0, 3, Q("13 in")),
    Sketcher.Constraint("DistanceY", -1, 1, 0, 3, Q("1.5625 in")),
])
pocket17 = body.newObject("PartDesign::Pocket", "Pocket016")
pocket17.Profile = sketch18
pocket17.Length = Q("0.1 in")
pocket17.Midplane = True

# Sketch on XY plane
sketch19 = body.newObject("Sketcher::SketchObject", "Sketch018")
sketch19.AttachmentSupport = (doc.getObject("XY_Plane"), [""])
sketch19.MapMode = "FlatFace"
sketch19.AttachmentOffset = App.Placement(V(0, 0, -3.5 * 25.4), App.Rotation())
sketch19.addGeometry([
    Part.ArcOfCircle(Part.Circle(V(330.2, 39.6875, 0), V(0, 0, 1), 50.8), math.radians(-90), math.radians(0)),
    Part.LineSegment(V(381, 39.6875, 0), V(381, 52.3875, 0)),
    Part.LineSegment(V(381, 52.3875, 0), V(330.2, -11.1125, 0)),
], False)
sketch19.addConstraint([
    Sketcher.Constraint("Tangent", 0, 2, 1, 1),
    Sketcher.Constraint("Coincident", 1, 2, 2, 1),
    Sketcher.Constraint("Coincident", 2, 2, 0, 1),
    Sketcher.Constraint("Vertical", 1),
    Sketcher.Constraint("Vertical", 0, 3, 2, 2),
    Sketcher.Constraint("Radius", 0, Q("2 in")),
    Sketcher.Constraint("DistanceY", 1, 1, 1, 2, Q("0.5 in")),
    Sketcher.Constraint("DistanceX", -1, 1, 0, 3, Q("13 in")),
    Sketcher.Constraint("DistanceY", -1, 1, 0, 3, Q("1.5625 in")),
])
pocket18 = body.newObject("PartDesign::Pocket", "Pocket017")
pocket18.Profile = sketch19
pocket18.Length = Q("0.1 in")
pocket18.Midplane = True

# Sketch on XY plane
sketch20 = body.newObject("Sketcher::SketchObject", "Sketch019")
sketch20.AttachmentSupport = (doc.getObject("XY_Plane"), [""])
sketch20.MapMode = "FlatFace"
sketch20.AttachmentOffset = App.Placement(V(0, 0, -5.25 * 25.4), App.Rotation())
sketch20.addGeometry([
    Part.ArcOfCircle(Part.Circle(V(330.2, 39.6875, 0), V(0, 0, 1), 50.8), math.radians(-90), math.radians(0)),
    Part.LineSegment(V(381, 39.6875, 0), V(381, 52.3875, 0)),
    Part.LineSegment(V(381, 52.3875, 0), V(330.2, -11.1125, 0)),
], False)
sketch20.addConstraint([
    Sketcher.Constraint("Tangent", 0, 2, 1, 1),
    Sketcher.Constraint("Coincident", 1, 2, 2, 1),
    Sketcher.Constraint("Coincident", 2, 2, 0, 1),
    Sketcher.Constraint("Vertical", 1),
    Sketcher.Constraint("Vertical", 0, 3, 2, 2),
    Sketcher.Constraint("Radius", 0, Q("2 in")),
    Sketcher.Constraint("DistanceY", 1, 1, 1, 2, Q("0.5 in")),
    Sketcher.Constraint("DistanceX", -1, 1, 0, 3, Q("13 in")),
    Sketcher.Constraint("DistanceY", -1, 1, 0, 3, Q("1.5625 in")),
])
pocket19 = body.newObject("PartDesign::Pocket", "Pocket018")
pocket19.Profile = sketch20
pocket19.Length = Q("0.1 in")
pocket19.Midplane = True

# Sketch on XY plane
sketch21 = body.newObject("Sketcher::SketchObject", "Sketch020")
sketch21.AttachmentSupport = (doc.getObject("XY_Plane"), [""])
sketch21.MapMode = "FlatFace"
sketch21.AttachmentOffset = App.Placement(V(0, 0, -7 * 25.4), App.Rotation())
sketch21.addGeometry([
    Part.ArcOfCircle(Part.Circle(V(330.2, 39.6875, 0), V(0, 0, 1), 50.8), math.radians(-90), math.radians(0)),
    Part.LineSegment(V(381, 39.6875, 0), V(381, 52.3875, 0)),
    Part.LineSegment(V(381, 52.3875, 0), V(330.2, -11.1125, 0)),
], False)
sketch21.addConstraint([
    Sketcher.Constraint("Tangent", 0, 2, 1, 1),
    Sketcher.Constraint("Coincident", 1, 2, 2, 1),
    Sketcher.Constraint("Coincident", 2, 2, 0, 1),
    Sketcher.Constraint("Vertical", 1),
    Sketcher.Constraint("Vertical", 0, 3, 2, 2),
    Sketcher.Constraint("Radius", 0, Q("2 in")),
    Sketcher.Constraint("DistanceY", 1, 1, 1, 2, Q("0.5 in")),
    Sketcher.Constraint("DistanceX", -1, 1, 0, 3, Q("13 in")),
    Sketcher.Constraint("DistanceY", -1, 1, 0, 3, Q("1.5625 in")),
])
pocket20 = body.newObject("PartDesign::Pocket", "Pocket019")
pocket20.Profile = sketch21
pocket20.Length = Q("0.1 in")
pocket20.Midplane = True

# Sketch on XY plane
sketch22 = body.newObject("Sketcher::SketchObject", "Sketch021")
sketch22.AttachmentSupport = (doc.getObject("XY_Plane"), [""])
sketch22.MapMode = "FlatFace"
sketch22.AttachmentOffset = App.Placement(V(0, 0, 1.75 * 25.4), App.Rotation())
sketch22.addGeometry([
    Part.ArcOfCircle(Part.Circle(V(330.2, 39.6875, 0), V(0, 0, 1), 50.8), math.radians(-90), math.radians(0)),
    Part.LineSegment(V(381, 39.6875, 0), V(381, 52.3875, 0)),
    Part.LineSegment(V(381, 52.3875, 0), V(330.2, -11.1125, 0)),
], False)
sketch22.addConstraint([
    Sketcher.Constraint("Tangent", 0, 2, 1, 1),
    Sketcher.Constraint("Coincident", 1, 2, 2, 1),
    Sketcher.Constraint("Coincident", 2, 2, 0, 1),
    Sketcher.Constraint("Vertical", 1),
    Sketcher.Constraint("Vertical", 0, 3, 2, 2),
    Sketcher.Constraint("Radius", 0, Q("2 in")),
    Sketcher.Constraint("DistanceY", 1, 1, 1, 2, Q("0.5 in")),
    Sketcher.Constraint("DistanceX", -1, 1, 0, 3, Q("13 in")),
    Sketcher.Constraint("DistanceY", -1, 1, 0, 3, Q("1.5625 in")),
])
pocket21 = body.newObject("PartDesign::Pocket", "Pocket020")
pocket21.Profile = sketch22
pocket21.Length = Q("0.1 in")
pocket21.Midplane = True

# Sketch on XY plane
sketch23 = body.newObject("Sketcher::SketchObject", "Sketch022")
sketch23.AttachmentSupport = (doc.getObject("XY_Plane"), [""])
sketch23.MapMode = "FlatFace"
sketch23.AttachmentOffset = App.Placement(V(0, 0, 3.5 * 25.4), App.Rotation())
sketch23.addGeometry([
    Part.ArcOfCircle(Part.Circle(V(330.2, 39.6875, 0), V(0, 0, 1), 50.8), math.radians(-90), math.radians(0)),
    Part.LineSegment(V(381, 39.6875, 0), V(381, 52.3875, 0)),
    Part.LineSegment(V(381, 52.3875, 0), V(330.2, -11.1125, 0)),
], False)
sketch23.addConstraint([
    Sketcher.Constraint("Tangent", 0, 2, 1, 1),
    Sketcher.Constraint("Coincident", 1, 2, 2, 1),
    Sketcher.Constraint("Coincident", 2, 2, 0, 1),
    Sketcher.Constraint("Vertical", 1),
    Sketcher.Constraint("Vertical", 0, 3, 2, 2),
    Sketcher.Constraint("Radius", 0, Q("2 in")),
    Sketcher.Constraint("DistanceY", 1, 1, 1, 2, Q("0.5 in")),
    Sketcher.Constraint("DistanceX", -1, 1, 0, 3, Q("13 in")),
    Sketcher.Constraint("DistanceY", -1, 1, 0, 3, Q("1.5625 in")),
])
pocket22 = body.newObject("PartDesign::Pocket", "Pocket021")
pocket22.Profile = sketch23
pocket22.Length = Q("0.1 in")
pocket22.Midplane = True

# Sketch on XY plane
sketch24 = body.newObject("Sketcher::SketchObject", "Sketch023")
sketch24.AttachmentSupport = (doc.getObject("XY_Plane"), [""])
sketch24.MapMode = "FlatFace"
sketch24.AttachmentOffset = App.Placement(V(0, 0, 5.25 * 25.4), App.Rotation())
sketch24.addGeometry([
    Part.ArcOfCircle(Part.Circle(V(330.2, 39.6875, 0), V(0, 0, 1), 50.8), math.radians(-90), math.radians(0)),
    Part.LineSegment(V(381, 39.6875, 0), V(381, 52.3875, 0)),
    Part.LineSegment(V(381, 52.3875, 0), V(330.2, -11.1125, 0)),
], False)
sketch24.addConstraint([
    Sketcher.Constraint("Tangent", 0, 2, 1, 1),
    Sketcher.Constraint("Coincident", 1, 2, 2, 1),
    Sketcher.Constraint("Coincident", 2, 2, 0, 1),
    Sketcher.Constraint("Vertical", 1),
    Sketcher.Constraint("Vertical", 0, 3, 2, 2),
    Sketcher.Constraint("Radius", 0, Q("2 in")),
    Sketcher.Constraint("DistanceY", 1, 1, 1, 2, Q("0.5 in")),
    Sketcher.Constraint("DistanceX", -1, 1, 0, 3, Q("13 in")),
    Sketcher.Constraint("DistanceY", -1, 1, 0, 3, Q("1.5625 in")),
])
pocket23 = body.newObject("PartDesign::Pocket", "Pocket022")
pocket23.Profile = sketch24
pocket23.Length = Q("0.1 in")
pocket23.Midplane = True

# Sketch on XY plane
sketch25 = body.newObject("Sketcher::SketchObject", "Sketch024")
sketch25.AttachmentSupport = (doc.getObject("XY_Plane"), [""])
sketch25.MapMode = "FlatFace"
sketch25.AttachmentOffset = App.Placement(V(0, 0, 7 * 25.4), App.Rotation())
sketch25.addGeometry([
    Part.ArcOfCircle(Part.Circle(V(330.2, 39.6875, 0), V(0, 0, 1), 50.8), math.radians(-90), math.radians(0)),
    Part.LineSegment(V(381, 39.6875, 0), V(381, 52.3875, 0)),
    Part.LineSegment(V(381, 52.3875, 0), V(330.2, -11.1125, 0)),
], False)
sketch25.addConstraint([
    Sketcher.Constraint("Tangent", 0, 2, 1, 1),
    Sketcher.Constraint("Coincident", 1, 2, 2, 1),
    Sketcher.Constraint("Coincident", 2, 2, 0, 1),
    Sketcher.Constraint("Vertical", 1),
    Sketcher.Constraint("Vertical", 0, 3, 2, 2),
    Sketcher.Constraint("Radius", 0, Q("2 in")),
    Sketcher.Constraint("DistanceY", 1, 1, 1, 2, Q("0.5 in")),
    Sketcher.Constraint("DistanceX", -1, 1, 0, 3, Q("13 in")),
    Sketcher.Constraint("DistanceY", -1, 1, 0, 3, Q("1.5625 in")),
])
pocket24 = body.newObject("PartDesign::Pocket", "Pocket023")
pocket24.Profile = sketch25
pocket24.Length = Q("0.1 in")
pocket24.Midplane = True

# Sketch on XZ plane
sketch26 = body.newObject("Sketcher::SketchObject", "Sketch025")
sketch26.AttachmentSupport = (doc.getObject("XZ_Plane"), [""])
sketch26.MapMode = "FlatFace"
sketch26.AttachmentOffset = App.Placement(V(0, 0, -6.5625 * 25.4), App.Rotation())
sketch26.addGeometry([
    Part.Circle(V(-114.3, -68.58, 0), V(0, 0, 1), 30.1625),
    Part.Circle(V(-114.3, 68.58, 0), V(0, 0, 1), 30.1625),
    Part.Circle(V(114.3, -68.58, 0), V(0, 0, 1), 30.1625),
    Part.Circle(V(114.3, 68.58, 0), V(0, 0, 1), 30.1625),
], False)
sketch26.addConstraint([
    Sketcher.Constraint("Equal", 0, 1),
    Sketcher.Constraint("Equal", 1, 2),
    Sketcher.Constraint("Equal", 2, 3),
    Sketcher.Constraint("Symmetric", 1, 3, 2, 3, -1, 1),
    Sketcher.Constraint("Symmetric", 0, 3, 3, 3, -1, 1),
    Sketcher.Constraint("Symmetric", 0, 3, 2, 3, -2),
    Sketcher.Constraint("Diameter", 0, Q("2.375 in")),
    Sketcher.Constraint("DistanceX", 0, 3, 2, 3, Q("9 in")),
    Sketcher.Constraint("DistanceY", 0, 3, -1, 1, Q("2.7 in")),
])
pocket25 = body.newObject("PartDesign::Pocket", "Pocket024")
pocket25.Profile = sketch26
pocket25.Type = "ThroughAll"
pocket25.Reversed = True

# Sketch on XZ plane
sketch27 = body.newObject("Sketcher::SketchObject", "Sketch026")
sketch27.AttachmentSupport = (doc.getObject("XZ_Plane"), [""])
sketch27.MapMode = "FlatFace"
sketch27.AttachmentOffset = App.Placement(V(0, 0, -6.5625 * 25.4), App.Rotation())
add_polygon(sketch27, [(-190.5, -114.3), (-190.5, 114.3), (190.5, 114.3), (190.5, -114.3)])  # lines 0-3
sketch27.addConstraint([
    Sketcher.Constraint("Vertical", 0),
    Sketcher.Constraint("Horizontal", 1),
    Sketcher.Constraint("Vertical", 2),
    Sketcher.Constraint("Horizontal", 3),
    Sketcher.Constraint("Symmetric", 0, 2, 2, 2, -1, 1),
    Sketcher.Constraint("DistanceX", 1, 1, 1, 2, Q("15 in")),
    Sketcher.Constraint("DistanceY", 0, 1, 0, 2, Q("9 in")),
])
pocket26 = body.newObject("PartDesign::Pocket", "Pocket025")
pocket26.Profile = sketch27
pocket26.Length = Q("0.25 in")
pocket26.Reversed = True

doc.recompute()
